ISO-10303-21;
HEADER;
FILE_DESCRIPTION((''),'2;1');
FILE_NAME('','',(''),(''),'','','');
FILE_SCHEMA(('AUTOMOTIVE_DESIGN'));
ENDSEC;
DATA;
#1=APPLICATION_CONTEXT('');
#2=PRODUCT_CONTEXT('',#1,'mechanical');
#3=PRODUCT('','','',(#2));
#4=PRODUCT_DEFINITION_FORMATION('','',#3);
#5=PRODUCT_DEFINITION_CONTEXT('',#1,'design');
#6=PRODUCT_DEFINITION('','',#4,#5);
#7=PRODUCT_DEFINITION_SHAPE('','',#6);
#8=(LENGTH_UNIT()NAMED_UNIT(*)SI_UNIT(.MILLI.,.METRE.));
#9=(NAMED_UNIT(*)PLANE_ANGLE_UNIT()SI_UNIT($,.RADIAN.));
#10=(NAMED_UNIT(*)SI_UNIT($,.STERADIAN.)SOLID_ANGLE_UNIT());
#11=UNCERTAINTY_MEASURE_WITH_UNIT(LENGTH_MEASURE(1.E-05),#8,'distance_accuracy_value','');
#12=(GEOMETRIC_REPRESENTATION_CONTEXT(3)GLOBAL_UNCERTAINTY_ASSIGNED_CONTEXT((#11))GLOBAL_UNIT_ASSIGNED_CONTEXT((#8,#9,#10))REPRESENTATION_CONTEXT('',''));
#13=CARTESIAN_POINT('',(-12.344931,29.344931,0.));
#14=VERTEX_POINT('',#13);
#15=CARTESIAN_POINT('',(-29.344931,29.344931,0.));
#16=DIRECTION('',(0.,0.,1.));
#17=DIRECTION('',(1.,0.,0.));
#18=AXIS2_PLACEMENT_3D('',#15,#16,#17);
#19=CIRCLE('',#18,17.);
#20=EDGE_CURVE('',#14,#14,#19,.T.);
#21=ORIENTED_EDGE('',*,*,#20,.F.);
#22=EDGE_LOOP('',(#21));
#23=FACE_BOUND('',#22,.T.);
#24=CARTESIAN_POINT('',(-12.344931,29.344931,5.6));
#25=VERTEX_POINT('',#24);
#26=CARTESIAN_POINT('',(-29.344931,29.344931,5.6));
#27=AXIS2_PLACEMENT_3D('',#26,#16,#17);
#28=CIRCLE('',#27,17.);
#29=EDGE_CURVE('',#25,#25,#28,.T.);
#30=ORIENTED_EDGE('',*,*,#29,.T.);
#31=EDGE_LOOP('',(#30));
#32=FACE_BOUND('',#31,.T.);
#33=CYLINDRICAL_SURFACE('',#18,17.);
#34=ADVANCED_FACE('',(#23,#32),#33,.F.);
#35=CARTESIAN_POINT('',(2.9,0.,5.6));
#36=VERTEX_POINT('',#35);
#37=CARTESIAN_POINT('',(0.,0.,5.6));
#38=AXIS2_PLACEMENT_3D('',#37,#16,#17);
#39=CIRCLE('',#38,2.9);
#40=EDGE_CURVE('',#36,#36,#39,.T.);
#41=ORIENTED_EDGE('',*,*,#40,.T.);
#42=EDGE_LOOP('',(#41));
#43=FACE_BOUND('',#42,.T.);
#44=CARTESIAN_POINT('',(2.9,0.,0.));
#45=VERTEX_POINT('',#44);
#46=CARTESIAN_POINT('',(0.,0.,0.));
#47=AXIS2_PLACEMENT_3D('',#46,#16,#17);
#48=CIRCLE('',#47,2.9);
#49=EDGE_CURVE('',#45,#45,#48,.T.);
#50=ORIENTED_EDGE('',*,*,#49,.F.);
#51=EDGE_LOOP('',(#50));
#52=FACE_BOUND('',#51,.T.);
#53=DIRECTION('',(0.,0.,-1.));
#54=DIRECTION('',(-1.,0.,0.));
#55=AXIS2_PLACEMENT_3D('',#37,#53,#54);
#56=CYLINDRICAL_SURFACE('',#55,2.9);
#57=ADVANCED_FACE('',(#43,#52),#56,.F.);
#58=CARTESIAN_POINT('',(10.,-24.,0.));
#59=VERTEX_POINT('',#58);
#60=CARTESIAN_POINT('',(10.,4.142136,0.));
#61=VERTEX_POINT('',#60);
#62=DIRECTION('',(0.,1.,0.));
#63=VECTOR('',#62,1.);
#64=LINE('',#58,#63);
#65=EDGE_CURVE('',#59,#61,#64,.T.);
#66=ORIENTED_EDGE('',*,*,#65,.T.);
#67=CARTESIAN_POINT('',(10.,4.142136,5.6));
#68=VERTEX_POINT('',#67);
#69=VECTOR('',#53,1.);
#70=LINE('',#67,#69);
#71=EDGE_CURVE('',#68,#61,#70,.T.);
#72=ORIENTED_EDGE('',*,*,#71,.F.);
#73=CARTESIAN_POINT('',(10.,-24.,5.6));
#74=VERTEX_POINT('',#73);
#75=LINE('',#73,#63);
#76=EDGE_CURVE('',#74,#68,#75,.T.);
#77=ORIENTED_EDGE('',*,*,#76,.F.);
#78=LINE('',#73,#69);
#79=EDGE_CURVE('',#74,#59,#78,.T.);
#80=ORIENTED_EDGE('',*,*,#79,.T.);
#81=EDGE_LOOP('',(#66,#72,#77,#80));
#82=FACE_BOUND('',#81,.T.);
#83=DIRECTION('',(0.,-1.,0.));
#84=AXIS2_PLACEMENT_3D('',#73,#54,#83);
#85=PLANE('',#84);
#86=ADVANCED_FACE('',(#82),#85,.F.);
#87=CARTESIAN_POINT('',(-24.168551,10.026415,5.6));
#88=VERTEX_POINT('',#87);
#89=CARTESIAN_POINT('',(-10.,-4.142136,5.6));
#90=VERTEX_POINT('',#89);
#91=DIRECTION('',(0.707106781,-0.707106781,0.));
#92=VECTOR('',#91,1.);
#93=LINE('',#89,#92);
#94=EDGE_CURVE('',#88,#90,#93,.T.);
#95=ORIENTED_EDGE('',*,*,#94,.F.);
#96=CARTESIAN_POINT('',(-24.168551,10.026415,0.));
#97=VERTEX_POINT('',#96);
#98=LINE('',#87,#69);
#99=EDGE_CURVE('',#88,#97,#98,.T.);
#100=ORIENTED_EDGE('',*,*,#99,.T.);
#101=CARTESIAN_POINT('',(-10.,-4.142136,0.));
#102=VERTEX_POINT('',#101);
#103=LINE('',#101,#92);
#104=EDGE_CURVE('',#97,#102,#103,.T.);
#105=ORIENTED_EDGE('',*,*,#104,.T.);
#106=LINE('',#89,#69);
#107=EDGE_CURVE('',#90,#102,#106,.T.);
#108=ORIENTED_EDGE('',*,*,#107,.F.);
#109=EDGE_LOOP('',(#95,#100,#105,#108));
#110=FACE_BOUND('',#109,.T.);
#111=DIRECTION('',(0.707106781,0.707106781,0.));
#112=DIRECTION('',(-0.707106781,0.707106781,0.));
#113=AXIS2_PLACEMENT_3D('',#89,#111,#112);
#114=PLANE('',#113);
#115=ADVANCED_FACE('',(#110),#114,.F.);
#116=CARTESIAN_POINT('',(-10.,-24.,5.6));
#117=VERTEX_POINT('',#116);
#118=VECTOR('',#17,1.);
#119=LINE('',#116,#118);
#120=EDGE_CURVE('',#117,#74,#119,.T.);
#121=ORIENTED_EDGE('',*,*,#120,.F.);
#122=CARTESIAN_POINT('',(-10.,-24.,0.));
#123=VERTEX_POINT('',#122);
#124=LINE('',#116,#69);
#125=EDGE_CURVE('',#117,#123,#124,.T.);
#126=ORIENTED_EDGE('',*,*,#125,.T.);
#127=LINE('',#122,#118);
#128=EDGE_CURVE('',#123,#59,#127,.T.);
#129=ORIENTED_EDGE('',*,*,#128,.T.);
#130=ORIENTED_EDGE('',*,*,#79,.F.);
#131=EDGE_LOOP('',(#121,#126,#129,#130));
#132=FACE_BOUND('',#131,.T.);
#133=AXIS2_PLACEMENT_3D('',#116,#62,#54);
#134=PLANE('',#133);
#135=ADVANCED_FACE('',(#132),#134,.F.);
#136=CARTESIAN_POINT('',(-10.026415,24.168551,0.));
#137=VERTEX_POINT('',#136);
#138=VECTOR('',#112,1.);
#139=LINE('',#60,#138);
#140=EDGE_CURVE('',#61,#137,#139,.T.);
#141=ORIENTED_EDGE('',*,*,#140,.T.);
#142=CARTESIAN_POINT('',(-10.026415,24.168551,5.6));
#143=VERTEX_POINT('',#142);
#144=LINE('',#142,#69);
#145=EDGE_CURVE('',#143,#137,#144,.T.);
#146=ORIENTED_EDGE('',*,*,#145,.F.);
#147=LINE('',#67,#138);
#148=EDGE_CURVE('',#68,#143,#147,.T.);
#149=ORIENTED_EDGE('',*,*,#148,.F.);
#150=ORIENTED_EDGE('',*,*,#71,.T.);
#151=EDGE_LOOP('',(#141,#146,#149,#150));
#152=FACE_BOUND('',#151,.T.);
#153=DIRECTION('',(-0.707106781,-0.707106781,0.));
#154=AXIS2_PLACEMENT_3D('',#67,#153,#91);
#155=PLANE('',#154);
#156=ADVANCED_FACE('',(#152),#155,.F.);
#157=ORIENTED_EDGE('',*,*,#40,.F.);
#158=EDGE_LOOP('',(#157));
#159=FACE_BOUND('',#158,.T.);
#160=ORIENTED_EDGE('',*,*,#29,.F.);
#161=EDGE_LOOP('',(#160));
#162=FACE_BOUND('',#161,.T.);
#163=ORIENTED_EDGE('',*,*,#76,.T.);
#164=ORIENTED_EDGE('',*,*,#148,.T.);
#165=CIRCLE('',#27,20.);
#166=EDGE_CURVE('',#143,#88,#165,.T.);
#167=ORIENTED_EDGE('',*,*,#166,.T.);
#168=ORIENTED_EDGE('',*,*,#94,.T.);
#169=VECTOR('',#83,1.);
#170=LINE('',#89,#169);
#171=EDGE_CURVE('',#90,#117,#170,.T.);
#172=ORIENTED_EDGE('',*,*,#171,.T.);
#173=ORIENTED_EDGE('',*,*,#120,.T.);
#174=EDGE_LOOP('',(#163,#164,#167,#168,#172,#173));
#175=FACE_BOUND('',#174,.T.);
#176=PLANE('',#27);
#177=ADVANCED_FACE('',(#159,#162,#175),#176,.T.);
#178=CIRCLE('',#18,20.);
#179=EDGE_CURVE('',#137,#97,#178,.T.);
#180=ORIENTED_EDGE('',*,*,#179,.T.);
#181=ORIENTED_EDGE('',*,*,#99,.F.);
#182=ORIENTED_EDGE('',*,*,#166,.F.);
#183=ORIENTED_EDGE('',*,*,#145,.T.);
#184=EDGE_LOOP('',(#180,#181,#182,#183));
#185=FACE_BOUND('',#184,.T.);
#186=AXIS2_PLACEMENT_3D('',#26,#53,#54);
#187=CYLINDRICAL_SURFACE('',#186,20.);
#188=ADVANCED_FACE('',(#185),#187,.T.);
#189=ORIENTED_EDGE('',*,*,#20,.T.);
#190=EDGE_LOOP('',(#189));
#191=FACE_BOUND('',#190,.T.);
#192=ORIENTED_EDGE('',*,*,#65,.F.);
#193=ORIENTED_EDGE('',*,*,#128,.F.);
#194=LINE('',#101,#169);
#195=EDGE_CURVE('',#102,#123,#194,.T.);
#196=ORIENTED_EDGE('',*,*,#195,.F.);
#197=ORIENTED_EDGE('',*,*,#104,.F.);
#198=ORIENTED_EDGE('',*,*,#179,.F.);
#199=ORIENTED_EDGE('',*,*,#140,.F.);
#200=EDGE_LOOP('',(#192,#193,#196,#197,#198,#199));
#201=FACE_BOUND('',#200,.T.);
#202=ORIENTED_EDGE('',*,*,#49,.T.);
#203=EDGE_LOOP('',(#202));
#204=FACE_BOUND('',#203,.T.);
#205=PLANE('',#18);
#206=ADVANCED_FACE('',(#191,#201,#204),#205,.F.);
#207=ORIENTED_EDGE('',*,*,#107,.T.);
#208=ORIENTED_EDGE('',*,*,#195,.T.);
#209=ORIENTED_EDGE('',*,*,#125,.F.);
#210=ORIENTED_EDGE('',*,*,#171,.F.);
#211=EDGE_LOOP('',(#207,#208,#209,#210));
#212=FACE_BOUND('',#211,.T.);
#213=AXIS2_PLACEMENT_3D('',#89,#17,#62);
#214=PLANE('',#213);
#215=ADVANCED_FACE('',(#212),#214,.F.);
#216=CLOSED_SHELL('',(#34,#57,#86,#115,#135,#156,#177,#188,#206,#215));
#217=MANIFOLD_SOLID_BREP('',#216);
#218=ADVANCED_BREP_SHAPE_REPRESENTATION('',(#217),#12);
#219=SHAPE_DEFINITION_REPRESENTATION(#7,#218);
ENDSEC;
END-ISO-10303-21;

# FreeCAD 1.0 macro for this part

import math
import FreeCAD as App
import Part
import Sketcher
from FreeCAD import Vector
Q = App.Units.Quantity

doc = App.newDocument("Part")
body = doc.addObject("PartDesign::Body", "Body")

# Sketch on XY plane
sketch1 = body.newObject("Sketcher::SketchObject", "Sketch")
sketch1.AttachmentSupport = (doc.getObject("XY_Plane"), [""])
sketch1.MapMode = "FlatFace"
sketch1.addGeometry([
    Part.LineSegment(Vector(-10, -4.1, 0), Vector(-10, -24, 0)),  # 0
    Part.LineSegment(Vector(-10, -24, 0), Vector(10, -24, 0)),  # 1
    Part.LineSegment(Vector(10, -24, 0), Vector(10, 4.1, 0)),  # 2
    Part.LineSegment(Vector(10, 4.1, 0), Vector(-10, 24.2, 0)),  # 3
    Part.ArcOfCircle(Part.Circle(Vector(-29.3, 29.3, 0), Vector(0, 0, 1), 20), math.radians(-15), math.radians(285)),  # 4
    Part.LineSegment(Vector(-24.2, 10, 0), Vector(-10, -4.1, 0)),  # 5
    Part.Circle(Vector(0, 0, 0), Vector(0, 0, 1), 2.9),  # 6
], False)
sketch1.addConstraint([
    Sketcher.Constraint("Coincident", 0, 2, 1, 1),
    Sketcher.Constraint("Coincident", 1, 2, 2, 1),
    Sketcher.Constraint("Coincident", 2, 2, 3, 1),
    Sketcher.Constraint("Coincident", 3, 2, 4, 1),
    Sketcher.Constraint("Coincident", 4, 2, 5, 1),
    Sketcher.Constraint("Coincident", 5, 2, 0, 1),
    Sketcher.Constraint("Vertical", 0),
    Sketcher.Constraint("Horizontal", 1),
    Sketcher.Constraint("Vertical", 2),
    Sketcher.Constraint("Coincident", 6, 3, -1, 1),
    Sketcher.Constraint("Symmetric", 2, 2, 5, 2, -1, 1),
    Sketcher.Constraint("Parallel", 3, 5),
    Sketcher.Constraint("Radius", 4, Q("20 mm")),
    Sketcher.Constraint("Diameter", 6, Q("5.8 mm")),
    Sketcher.Constraint("DistanceX", 1, 1, 1, 2, Q("20 mm")),
    Sketcher.Constraint("Angle", 3, Q("135 deg")),
    Sketcher.Constraint("DistanceY", 0, 2, -1, 1, Q("24 mm")),
    Sketcher.Constraint("DistanceY", 0, 2, 0, 1, Q("19.857864 mm")),
    Sketcher.Constraint("DistanceX", 4, 3, -1, 1, Q("29.344931 mm")),
    Sketcher.Constraint("DistanceY", -1, 1, 4, 3, Q("29.344931 mm")),
])
pad1 = body.newObject("PartDesign::Pad", "Pad")
pad1.Profile = sketch1
pad1.Length = 5.6

# Sketch on XY plane
sketch2 = body.newObject("Sketcher::SketchObject", "Sketch001")
sketch2.AttachmentSupport = (doc.getObject("XY_Plane"), [""])
sketch2.MapMode = "FlatFace"
sketch2.AttachmentOffset = App.Placement(Vector(0, 0, 5.6), App.Rotation())
sketch2.addGeometry(Part.Circle(Vector(-29, 29, 0), Vector(0, 0, 1), 17), False)
sketch2.addConstraint([
    Sketcher.Constraint("Diameter", 0, Q("34 mm")),
    Sketcher.Constraint("DistanceX", 0, 3, -1, 1, Q("29.344931 mm")),
    Sketcher.Constraint("DistanceY", -1, 1, 0, 3, Q("29.344931 mm")),
])
pocket1 = body.newObject("PartDesign::Pocket", "Pocket")
pocket1.Profile = sketch2
pocket1.Type = "ThroughAll"

doc.recompute()
